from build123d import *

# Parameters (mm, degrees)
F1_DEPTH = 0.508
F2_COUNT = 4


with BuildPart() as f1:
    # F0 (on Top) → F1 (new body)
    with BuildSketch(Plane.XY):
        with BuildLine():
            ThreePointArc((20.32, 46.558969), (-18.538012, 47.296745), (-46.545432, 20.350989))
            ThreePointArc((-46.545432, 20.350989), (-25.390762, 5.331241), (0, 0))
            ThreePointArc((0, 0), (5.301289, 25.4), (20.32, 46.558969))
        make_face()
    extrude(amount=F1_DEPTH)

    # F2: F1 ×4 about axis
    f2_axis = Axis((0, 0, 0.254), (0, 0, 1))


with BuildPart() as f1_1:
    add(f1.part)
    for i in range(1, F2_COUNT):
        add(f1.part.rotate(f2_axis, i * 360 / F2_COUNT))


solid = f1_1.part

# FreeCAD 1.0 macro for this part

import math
import FreeCAD as App
import Part
import Sketcher

V = App.Vector
Q = App.Units.Quantity

doc = App.newDocument("Part")
body = doc.addObject("PartDesign::Body", "Body")

sketch1 = body.newObject("Sketcher::SketchObject", "Sketch")
sketch1.AttachmentSupport = (doc.getObject("XY_Plane"), [""])
sketch1.MapMode = "FlatFace"
sketch1.addGeometry([
    Part.ArcOfCircle(Part.Circle(V(0, 0, 0), V(0, 0, 1), 51), math.radians(66), math.radians(156)),
    Part.ArcOfCircle(Part.Circle(V(0, 64, 0), V(0, 0, 1), 64), math.radians(-137), math.radians(-90)),
    Part.ArcOfCircle(Part.Circle(V(64, 0, 0), V(0, 0, 1), 64), math.radians(133), math.radians(180)),
], False)
sketch1.addConstraint([
    Sketcher.Constraint("Coincident", 0, 2, 1, 1),
    Sketcher.Constraint("Coincident", 1, 2, 2, 2),
    Sketcher.Constraint("Coincident", 2, 1, 0, 1),
    Sketcher.Constraint("Coincident", 0, 3, -1, 1),
    Sketcher.Constraint("Coincident", 1, 2, -1, 1),
    Sketcher.Constraint("PointOnObject", 2, 3, -1),
    Sketcher.Constraint("Radius", 0, Q("2 in")),
    Sketcher.Constraint("Radius", 2, Q("2.5000001 in")),
    Sketcher.Constraint("Radius", 1, 63.656742),
    Sketcher.Constraint("DistanceX", 0, 2, 1, 3, 46.656199),
])
pad1 = body.newObject("PartDesign::Pad", "Pad")
pad1.Profile = sketch1
pad1.Length = Q("0.02 in")
body2 = doc.addObject("PartDesign::Body", "Body001")
body2.AllowCompound = True
doc.recompute()

body2.BaseFeature = body
doc.recompute()

body3 = doc.addObject("PartDesign::Body", "Body002")
body3.BaseFeature = body
body3.Placement = App.Placement(V(0, 0, 0), App.Rotation(V(0, 0, 1), 90))
boolean = body2.newObject("PartDesign::Boolean", "Boolean")
boolean.Type = "Fuse"
boolean.addObjects([body3])
doc.recompute()

body4 = doc.addObject("PartDesign::Body", "Body003")
body4.BaseFeature = body
body4.Placement = App.Placement(V(0, 0, 0), App.Rotation(V(0, 0, 1), 180))
boolean2 = body2.newObject("PartDesign::Boolean", "Boolean001")
boolean2.Type = "Fuse"
boolean2.addObjects([body4])
doc.recompute()

body.Placement = App.Placement(V(0, 0, 0), App.Rotation(V(0, 0, 1), 270))
boolean3 = body2.newObject("PartDesign::Boolean", "Boolean002")
boolean3.Type = "Fuse"
boolean3.addObjects([body])

doc.recompute()
